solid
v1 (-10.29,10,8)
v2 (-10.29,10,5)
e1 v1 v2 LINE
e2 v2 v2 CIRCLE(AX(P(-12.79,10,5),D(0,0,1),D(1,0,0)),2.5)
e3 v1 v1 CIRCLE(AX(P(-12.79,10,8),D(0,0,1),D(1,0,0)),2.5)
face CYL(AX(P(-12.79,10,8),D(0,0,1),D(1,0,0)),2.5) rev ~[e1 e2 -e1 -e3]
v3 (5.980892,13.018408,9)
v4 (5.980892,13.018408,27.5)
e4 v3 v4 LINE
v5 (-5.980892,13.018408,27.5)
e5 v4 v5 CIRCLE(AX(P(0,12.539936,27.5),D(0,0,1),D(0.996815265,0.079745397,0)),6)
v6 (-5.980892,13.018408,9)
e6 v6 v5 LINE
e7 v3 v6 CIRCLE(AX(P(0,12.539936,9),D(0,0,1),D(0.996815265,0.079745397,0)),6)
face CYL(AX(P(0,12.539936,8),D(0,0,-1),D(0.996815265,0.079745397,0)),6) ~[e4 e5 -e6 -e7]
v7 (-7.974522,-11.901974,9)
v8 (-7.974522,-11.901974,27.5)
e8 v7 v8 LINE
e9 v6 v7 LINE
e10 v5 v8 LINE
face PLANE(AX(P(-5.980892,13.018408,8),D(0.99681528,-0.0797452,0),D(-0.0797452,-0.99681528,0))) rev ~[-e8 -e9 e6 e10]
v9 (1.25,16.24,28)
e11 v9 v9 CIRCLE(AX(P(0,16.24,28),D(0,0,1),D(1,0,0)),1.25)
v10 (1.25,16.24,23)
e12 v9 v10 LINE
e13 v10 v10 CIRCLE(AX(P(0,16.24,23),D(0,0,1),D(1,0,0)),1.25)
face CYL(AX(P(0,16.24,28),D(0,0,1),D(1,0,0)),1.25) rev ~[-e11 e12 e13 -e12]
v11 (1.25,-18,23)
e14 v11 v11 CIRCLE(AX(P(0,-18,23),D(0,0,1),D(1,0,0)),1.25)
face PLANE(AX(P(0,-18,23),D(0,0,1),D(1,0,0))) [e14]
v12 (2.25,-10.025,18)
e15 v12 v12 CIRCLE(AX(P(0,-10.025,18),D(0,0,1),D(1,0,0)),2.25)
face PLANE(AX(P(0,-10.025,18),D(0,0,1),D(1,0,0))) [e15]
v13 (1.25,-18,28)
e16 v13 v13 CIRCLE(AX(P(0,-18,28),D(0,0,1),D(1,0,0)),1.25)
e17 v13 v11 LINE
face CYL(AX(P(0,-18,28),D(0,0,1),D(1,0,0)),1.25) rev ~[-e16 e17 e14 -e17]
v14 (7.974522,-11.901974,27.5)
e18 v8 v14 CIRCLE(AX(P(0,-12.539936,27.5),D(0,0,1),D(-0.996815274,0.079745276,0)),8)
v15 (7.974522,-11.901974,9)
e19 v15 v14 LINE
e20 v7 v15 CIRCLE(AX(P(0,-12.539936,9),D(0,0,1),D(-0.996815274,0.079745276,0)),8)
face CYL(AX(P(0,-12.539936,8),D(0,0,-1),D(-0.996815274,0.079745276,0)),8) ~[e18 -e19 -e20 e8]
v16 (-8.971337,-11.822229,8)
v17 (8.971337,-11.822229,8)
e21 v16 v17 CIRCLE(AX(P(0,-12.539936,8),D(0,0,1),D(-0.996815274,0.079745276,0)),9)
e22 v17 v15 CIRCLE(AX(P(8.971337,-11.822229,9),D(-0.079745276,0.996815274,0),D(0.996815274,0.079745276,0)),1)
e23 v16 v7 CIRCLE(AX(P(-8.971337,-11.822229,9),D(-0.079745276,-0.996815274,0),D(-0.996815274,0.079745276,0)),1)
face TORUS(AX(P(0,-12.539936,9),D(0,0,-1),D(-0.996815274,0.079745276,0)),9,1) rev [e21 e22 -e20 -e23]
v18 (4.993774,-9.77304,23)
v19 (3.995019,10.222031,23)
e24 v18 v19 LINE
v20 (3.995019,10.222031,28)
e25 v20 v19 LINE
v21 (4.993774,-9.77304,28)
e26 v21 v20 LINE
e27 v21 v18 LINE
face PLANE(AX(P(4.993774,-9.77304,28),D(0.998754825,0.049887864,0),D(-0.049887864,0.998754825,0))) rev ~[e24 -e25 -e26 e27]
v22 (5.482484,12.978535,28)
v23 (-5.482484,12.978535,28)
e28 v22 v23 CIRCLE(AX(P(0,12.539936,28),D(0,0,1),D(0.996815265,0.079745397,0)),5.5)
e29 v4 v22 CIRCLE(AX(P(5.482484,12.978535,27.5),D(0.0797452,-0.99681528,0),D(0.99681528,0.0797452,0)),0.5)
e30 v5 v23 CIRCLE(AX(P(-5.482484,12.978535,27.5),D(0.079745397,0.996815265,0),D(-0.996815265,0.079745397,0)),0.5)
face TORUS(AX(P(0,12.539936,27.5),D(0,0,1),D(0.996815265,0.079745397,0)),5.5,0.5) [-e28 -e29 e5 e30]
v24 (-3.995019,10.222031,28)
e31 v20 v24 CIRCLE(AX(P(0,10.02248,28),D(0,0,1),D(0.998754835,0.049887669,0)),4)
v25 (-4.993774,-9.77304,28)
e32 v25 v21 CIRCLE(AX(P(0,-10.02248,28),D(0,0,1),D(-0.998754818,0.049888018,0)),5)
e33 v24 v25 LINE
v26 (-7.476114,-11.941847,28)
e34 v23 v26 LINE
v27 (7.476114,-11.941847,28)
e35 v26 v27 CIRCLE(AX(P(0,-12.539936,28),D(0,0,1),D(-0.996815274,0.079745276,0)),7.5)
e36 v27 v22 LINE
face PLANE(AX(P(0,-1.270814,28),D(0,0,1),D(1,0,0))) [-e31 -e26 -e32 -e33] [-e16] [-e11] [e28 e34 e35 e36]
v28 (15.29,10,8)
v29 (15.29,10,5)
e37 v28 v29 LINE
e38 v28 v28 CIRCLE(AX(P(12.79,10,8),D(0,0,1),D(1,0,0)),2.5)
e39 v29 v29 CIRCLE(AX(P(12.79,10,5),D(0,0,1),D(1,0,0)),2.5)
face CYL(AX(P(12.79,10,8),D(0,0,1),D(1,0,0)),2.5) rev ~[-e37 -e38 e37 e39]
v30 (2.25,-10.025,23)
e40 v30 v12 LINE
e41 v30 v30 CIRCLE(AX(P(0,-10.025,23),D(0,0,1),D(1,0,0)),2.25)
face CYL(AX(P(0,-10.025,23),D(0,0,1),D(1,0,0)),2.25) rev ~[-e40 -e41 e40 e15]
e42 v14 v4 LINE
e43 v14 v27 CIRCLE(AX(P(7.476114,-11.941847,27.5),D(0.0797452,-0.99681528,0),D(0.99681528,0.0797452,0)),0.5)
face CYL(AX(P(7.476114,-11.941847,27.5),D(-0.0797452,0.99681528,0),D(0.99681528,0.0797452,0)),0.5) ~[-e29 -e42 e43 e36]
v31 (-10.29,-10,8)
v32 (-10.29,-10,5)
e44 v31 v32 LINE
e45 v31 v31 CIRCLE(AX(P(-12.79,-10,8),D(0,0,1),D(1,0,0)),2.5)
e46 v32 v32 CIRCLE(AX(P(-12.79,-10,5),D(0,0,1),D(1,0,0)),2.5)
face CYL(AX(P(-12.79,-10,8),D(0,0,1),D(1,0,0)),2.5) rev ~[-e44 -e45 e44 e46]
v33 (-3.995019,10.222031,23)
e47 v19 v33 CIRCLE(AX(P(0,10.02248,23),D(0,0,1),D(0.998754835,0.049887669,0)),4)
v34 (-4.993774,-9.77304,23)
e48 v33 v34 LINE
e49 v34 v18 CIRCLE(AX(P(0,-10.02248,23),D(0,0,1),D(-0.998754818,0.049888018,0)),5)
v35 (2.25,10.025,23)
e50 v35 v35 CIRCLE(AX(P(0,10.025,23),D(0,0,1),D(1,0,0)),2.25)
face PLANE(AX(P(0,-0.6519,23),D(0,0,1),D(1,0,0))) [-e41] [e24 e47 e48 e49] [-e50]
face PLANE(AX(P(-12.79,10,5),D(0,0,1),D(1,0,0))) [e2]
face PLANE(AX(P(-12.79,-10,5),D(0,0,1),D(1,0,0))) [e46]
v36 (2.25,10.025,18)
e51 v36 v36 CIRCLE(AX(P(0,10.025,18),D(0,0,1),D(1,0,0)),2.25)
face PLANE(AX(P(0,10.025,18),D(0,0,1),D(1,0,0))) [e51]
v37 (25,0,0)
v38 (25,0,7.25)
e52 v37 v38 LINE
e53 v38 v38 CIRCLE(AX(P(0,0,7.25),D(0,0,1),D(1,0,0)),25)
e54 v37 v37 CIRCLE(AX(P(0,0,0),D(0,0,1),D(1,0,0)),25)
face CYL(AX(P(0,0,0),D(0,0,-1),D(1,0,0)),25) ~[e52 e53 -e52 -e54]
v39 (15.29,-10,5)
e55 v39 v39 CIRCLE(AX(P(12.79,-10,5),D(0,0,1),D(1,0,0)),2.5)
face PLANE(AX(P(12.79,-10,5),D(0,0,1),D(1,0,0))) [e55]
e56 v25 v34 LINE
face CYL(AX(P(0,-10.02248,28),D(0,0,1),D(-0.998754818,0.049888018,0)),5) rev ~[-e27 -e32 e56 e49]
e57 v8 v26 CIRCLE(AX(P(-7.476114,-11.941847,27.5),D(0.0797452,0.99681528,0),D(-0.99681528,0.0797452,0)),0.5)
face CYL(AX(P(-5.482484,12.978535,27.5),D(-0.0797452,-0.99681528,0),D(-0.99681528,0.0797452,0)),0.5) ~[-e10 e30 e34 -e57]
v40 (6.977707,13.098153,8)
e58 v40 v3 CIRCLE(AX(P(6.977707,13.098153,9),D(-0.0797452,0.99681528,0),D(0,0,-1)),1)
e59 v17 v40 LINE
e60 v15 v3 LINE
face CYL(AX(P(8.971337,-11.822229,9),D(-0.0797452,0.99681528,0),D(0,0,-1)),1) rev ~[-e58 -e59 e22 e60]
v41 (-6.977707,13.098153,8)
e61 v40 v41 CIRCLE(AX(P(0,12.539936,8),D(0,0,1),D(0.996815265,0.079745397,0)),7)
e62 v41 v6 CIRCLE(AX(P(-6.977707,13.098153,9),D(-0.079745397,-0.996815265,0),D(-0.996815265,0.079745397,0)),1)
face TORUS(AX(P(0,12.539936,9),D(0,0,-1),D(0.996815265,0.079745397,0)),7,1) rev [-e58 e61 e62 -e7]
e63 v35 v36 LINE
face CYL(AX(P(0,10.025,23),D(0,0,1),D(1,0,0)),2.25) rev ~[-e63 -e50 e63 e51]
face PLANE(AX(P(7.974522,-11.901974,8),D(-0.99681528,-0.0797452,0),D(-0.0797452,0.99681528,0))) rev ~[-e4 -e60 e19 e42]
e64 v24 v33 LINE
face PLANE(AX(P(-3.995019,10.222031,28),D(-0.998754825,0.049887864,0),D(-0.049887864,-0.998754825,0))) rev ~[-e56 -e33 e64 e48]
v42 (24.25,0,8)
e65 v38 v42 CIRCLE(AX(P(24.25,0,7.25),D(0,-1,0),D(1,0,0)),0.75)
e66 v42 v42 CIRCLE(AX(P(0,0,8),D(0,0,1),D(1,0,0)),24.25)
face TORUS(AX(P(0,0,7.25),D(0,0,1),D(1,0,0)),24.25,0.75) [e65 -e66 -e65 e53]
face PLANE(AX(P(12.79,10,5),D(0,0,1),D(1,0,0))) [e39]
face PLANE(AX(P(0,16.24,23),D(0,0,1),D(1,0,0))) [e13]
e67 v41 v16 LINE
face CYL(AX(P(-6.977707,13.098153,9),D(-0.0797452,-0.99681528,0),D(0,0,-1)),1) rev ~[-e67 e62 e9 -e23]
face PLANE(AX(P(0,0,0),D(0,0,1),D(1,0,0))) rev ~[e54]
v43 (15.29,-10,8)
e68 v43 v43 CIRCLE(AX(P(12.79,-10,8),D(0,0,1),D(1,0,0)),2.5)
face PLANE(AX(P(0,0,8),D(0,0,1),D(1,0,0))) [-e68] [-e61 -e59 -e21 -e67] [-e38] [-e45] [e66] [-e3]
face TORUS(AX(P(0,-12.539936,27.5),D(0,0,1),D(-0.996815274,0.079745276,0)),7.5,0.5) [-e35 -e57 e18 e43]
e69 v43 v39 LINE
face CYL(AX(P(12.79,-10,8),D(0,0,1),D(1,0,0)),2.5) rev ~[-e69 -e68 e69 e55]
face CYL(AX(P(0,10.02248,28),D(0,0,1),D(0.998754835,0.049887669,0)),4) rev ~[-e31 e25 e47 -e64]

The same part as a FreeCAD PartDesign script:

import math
import FreeCAD as App
import Part
import Sketcher
from FreeCAD import Vector
Q = App.Units.Quantity


def edges_at(feature, points):
    """Names of the edges that pass closest to the given points."""
    edges = feature.Shape.Edges
    near = lambda p: min(range(len(edges)), key=lambda i: edges[i].distToShape(Part.Vertex(*p))[0])
    return sorted({f"Edge{near(p) + 1}" for p in points})

doc = App.newDocument("Part")
body = doc.addObject("PartDesign::Body", "Body")

sketch1 = doc.addObject("Sketcher::SketchObject", "Sketch")
body.addObject(sketch1)
sketch1.AttachmentSupport = (doc.XY_Plane, [""])
sketch1.MapMode = "FlatFace"
sketch1.addGeometry(Part.Circle(Vector(0, 0, 0), Vector(0, 0, 1), 25), False)
sketch1.addConstraint([
    Sketcher.Constraint("Coincident", 0, 3, -1, 1),
    Sketcher.Constraint("Diameter", 0, Q("50 mm")),
])
pad1 = doc.addObject("PartDesign::Pad", "Pad")
body.addObject(pad1)
pad1.Profile = sketch1
pad1.Length = 8

sketch2 = doc.addObject("Sketcher::SketchObject", "Sketch001")
body.addObject(sketch2)
sketch2.AttachmentSupport = (doc.XY_Plane, [""])
sketch2.MapMode = "FlatFace"
sketch2.AttachmentOffset = App.Placement(Vector(0, 0, 8), App.Rotation())
sketch2.addGeometry([
    Part.ArcOfCircle(Part.Circle(Vector(0, 12.539936, 0), Vector(0, 0, 1), 6), math.radians(4.573931), math.radians(175.426069)),
    Part.LineSegment(Vector(-5.980892, 13.018408, 0), Vector(-7.974522, -11.901974, 0)),
    Part.ArcOfCircle(Part.Circle(Vector(0, -12.539936, 0), Vector(0, 0, 1), 8), math.radians(175.426076), math.radians(364.573924)),
    Part.LineSegment(Vector(7.974522, -11.901974, 0), Vector(5.980892, 13.018408, 0)),
], False)
sketch2.addConstraint([
    Sketcher.Constraint("Tangent", 0, 2, 1, 1),
    Sketcher.Constraint("Tangent", 1, 2, 2, 1),
    Sketcher.Constraint("Tangent", 2, 2, 3, 1),
    Sketcher.Constraint("Tangent", 3, 2, 0, 1),
    Sketcher.Constraint("Symmetric", 0, 3, 2, 3, -1, 1),
    Sketcher.Constraint("PointOnObject", 0, 3, -2),
    Sketcher.Constraint("Radius", 0, Q("6 mm")),
    Sketcher.Constraint("Radius", 2, Q("8 mm")),
    Sketcher.Constraint("Distance", 1, Q("25 mm")),
])
pad2 = doc.addObject("PartDesign::Pad", "Pad001")
body.addObject(pad2)
pad2.Profile = sketch2
pad2.Length = 20

sketch3 = doc.addObject("Sketcher::SketchObject", "Sketch002")
body.addObject(sketch3)
sketch3.AttachmentSupport = (doc.XY_Plane, [""])
sketch3.MapMode = "FlatFace"
sketch3.AttachmentOffset = App.Placement(Vector(0, 0, 8), App.Rotation())
sketch3.addGeometry([
    Part.Circle(Vector(12.79, 10, 0), Vector(0, 0, 1), 2.5),
    Part.Circle(Vector(12.79, -10, 0), Vector(0, 0, 1), 2.5),
    Part.Circle(Vector(-12.79, -10, 0), Vector(0, 0, 1), 2.5),
    Part.Circle(Vector(-12.79, 10, 0), Vector(0, 0, 1), 2.5),
], False)
sketch3.addConstraint([
    Sketcher.Constraint("Equal", 0, 1),
    Sketcher.Constraint("Equal", 1, 2),
    Sketcher.Constraint("Equal", 2, 3),
    Sketcher.Constraint("Symmetric", 0, 3, 2, 3, -1, 1),
    Sketcher.Constraint("Symmetric", 1, 3, 3, 3, -1, 1),
    Sketcher.Constraint("Symmetric", 1, 3, 2, 3, -2),
    Sketcher.Constraint("Diameter", 0, Q("5 mm")),
    Sketcher.Constraint("DistanceY", -1, 1, 0, 3, Q("10 mm")),
    Sketcher.Constraint("DistanceX", -1, 1, 0, 3, Q("12.79 mm")),
])
pocket1 = doc.addObject("PartDesign::Pocket", "Pocket")
body.addObject(pocket1)
pocket1.Profile = sketch3
pocket1.Length = 3

sketch4 = doc.addObject("Sketcher::SketchObject", "Sketch003")
body.addObject(sketch4)
sketch4.AttachmentSupport = (doc.XY_Plane, [""])
sketch4.MapMode = "FlatFace"
sketch4.AttachmentOffset = App.Placement(Vector(0, 0, 28), App.Rotation())
sketch4.addGeometry([
    Part.ArcOfCircle(Part.Circle(Vector(0, 10.02248, 0), Vector(0, 0, 1), 4), math.radians(2.85954), math.radians(177.14046)),
    Part.LineSegment(Vector(-3.995019, 10.222031, 0), Vector(-4.993774, -9.77304, 0)),
    Part.ArcOfCircle(Part.Circle(Vector(0, -10.02248, 0), Vector(0, 0, 1), 5), math.radians(177.14044), math.radians(362.85956)),
    Part.LineSegment(Vector(4.993774, -9.77304, 0), Vector(3.995019, 10.222031, 0)),
], False)
sketch4.addConstraint([
    Sketcher.Constraint("Tangent", 0, 2, 1, 1),
    Sketcher.Constraint("Tangent", 1, 2, 2, 1),
    Sketcher.Constraint("Tangent", 2, 2, 3, 1),
    Sketcher.Constraint("Tangent", 3, 2, 0, 1),
    Sketcher.Constraint("Symmetric", 0, 3, 2, 3, -1, 1),
    Sketcher.Constraint("PointOnObject", 0, 3, -2),
    Sketcher.Constraint("Radius", 0, Q("4 mm")),
    Sketcher.Constraint("Radius", 2, Q("5 mm")),
    Sketcher.Constraint("Distance", 1, Q("20.019999 mm")),
])
pocket2 = doc.addObject("PartDesign::Pocket", "Pocket001")
body.addObject(pocket2)
pocket2.Profile = sketch4
pocket2.Length = 5

sketch5 = doc.addObject("Sketcher::SketchObject", "Sketch004")
body.addObject(sketch5)
sketch5.AttachmentSupport = (doc.XY_Plane, [""])
sketch5.MapMode = "FlatFace"
sketch5.AttachmentOffset = App.Placement(Vector(0, 0, 23), App.Rotation())
sketch5.addGeometry([
    Part.Circle(Vector(0, 10.025, 0), Vector(0, 0, 1), 2.25),
    Part.Circle(Vector(0, -10.025, 0), Vector(0, 0, 1), 2.25),
], False)
sketch5.addConstraint([
    Sketcher.Constraint("Equal", 0, 1),
    Sketcher.Constraint("Symmetric", 0, 3, 1, 3, -1, 1),
    Sketcher.Constraint("PointOnObject", 0, 3, -2),
    Sketcher.Constraint("Diameter", 0, Q("4.5 mm")),
    Sketcher.Constraint("DistanceY", 1, 3, 0, 3, Q("20.05 mm")),
])
pocket3 = doc.addObject("PartDesign::Pocket", "Pocket002")
body.addObject(pocket3)
pocket3.Profile = sketch5
pocket3.Length = 5

sketch6 = doc.addObject("Sketcher::SketchObject", "Sketch005")
body.addObject(sketch6)
sketch6.AttachmentSupport = (doc.XY_Plane, [""])
sketch6.MapMode = "FlatFace"
sketch6.AttachmentOffset = App.Placement(Vector(0, 0, 28), App.Rotation())
sketch6.addGeometry([
    Part.Circle(Vector(0, 16.24, 0), Vector(0, 0, 1), 1.25),
    Part.Circle(Vector(0, -18, 0), Vector(0, 0, 1), 1.25),
], False)
sketch6.addConstraint([
    Sketcher.Constraint("Equal", 0, 1),
    Sketcher.Constraint("PointOnObject", 0, 3, -2),
    Sketcher.Constraint("PointOnObject", 1, 3, -2),
    Sketcher.Constraint("Diameter", 0, Q("2.5 mm")),
    Sketcher.Constraint("DistanceY", 1, 3, -1, 1, Q("18 mm")),
    Sketcher.Constraint("DistanceY", -1, 1, 0, 3, Q("16.24 mm")),
])
pocket4 = doc.addObject("PartDesign::Pocket", "Pocket003")
body.addObject(pocket4)
pocket4.Profile = sketch6
pocket4.Length = 5
doc.recompute()

fillet = doc.addObject("PartDesign::Fillet", "Fillet")
body.addObject(fillet)
fillet.Base = (pocket4, edges_at(pocket4, [(-25, 0, 8)]))
fillet.Radius = 0.75
doc.recompute()

fillet2 = doc.addObject("PartDesign::Fillet", "Fillet001")
body.addObject(fillet2)
fillet2.Base = (fillet, edges_at(fillet, [(0, -20.54, 8)]))
fillet2.Radius = 1
doc.recompute()

fillet3 = doc.addObject("PartDesign::Fillet", "Fillet002")
body.addObject(fillet3)
fillet3.Base = (fillet2, edges_at(fillet2, [(6.978, 0.558, 28)]))
fillet3.Radius = 0.5

doc.recompute()
